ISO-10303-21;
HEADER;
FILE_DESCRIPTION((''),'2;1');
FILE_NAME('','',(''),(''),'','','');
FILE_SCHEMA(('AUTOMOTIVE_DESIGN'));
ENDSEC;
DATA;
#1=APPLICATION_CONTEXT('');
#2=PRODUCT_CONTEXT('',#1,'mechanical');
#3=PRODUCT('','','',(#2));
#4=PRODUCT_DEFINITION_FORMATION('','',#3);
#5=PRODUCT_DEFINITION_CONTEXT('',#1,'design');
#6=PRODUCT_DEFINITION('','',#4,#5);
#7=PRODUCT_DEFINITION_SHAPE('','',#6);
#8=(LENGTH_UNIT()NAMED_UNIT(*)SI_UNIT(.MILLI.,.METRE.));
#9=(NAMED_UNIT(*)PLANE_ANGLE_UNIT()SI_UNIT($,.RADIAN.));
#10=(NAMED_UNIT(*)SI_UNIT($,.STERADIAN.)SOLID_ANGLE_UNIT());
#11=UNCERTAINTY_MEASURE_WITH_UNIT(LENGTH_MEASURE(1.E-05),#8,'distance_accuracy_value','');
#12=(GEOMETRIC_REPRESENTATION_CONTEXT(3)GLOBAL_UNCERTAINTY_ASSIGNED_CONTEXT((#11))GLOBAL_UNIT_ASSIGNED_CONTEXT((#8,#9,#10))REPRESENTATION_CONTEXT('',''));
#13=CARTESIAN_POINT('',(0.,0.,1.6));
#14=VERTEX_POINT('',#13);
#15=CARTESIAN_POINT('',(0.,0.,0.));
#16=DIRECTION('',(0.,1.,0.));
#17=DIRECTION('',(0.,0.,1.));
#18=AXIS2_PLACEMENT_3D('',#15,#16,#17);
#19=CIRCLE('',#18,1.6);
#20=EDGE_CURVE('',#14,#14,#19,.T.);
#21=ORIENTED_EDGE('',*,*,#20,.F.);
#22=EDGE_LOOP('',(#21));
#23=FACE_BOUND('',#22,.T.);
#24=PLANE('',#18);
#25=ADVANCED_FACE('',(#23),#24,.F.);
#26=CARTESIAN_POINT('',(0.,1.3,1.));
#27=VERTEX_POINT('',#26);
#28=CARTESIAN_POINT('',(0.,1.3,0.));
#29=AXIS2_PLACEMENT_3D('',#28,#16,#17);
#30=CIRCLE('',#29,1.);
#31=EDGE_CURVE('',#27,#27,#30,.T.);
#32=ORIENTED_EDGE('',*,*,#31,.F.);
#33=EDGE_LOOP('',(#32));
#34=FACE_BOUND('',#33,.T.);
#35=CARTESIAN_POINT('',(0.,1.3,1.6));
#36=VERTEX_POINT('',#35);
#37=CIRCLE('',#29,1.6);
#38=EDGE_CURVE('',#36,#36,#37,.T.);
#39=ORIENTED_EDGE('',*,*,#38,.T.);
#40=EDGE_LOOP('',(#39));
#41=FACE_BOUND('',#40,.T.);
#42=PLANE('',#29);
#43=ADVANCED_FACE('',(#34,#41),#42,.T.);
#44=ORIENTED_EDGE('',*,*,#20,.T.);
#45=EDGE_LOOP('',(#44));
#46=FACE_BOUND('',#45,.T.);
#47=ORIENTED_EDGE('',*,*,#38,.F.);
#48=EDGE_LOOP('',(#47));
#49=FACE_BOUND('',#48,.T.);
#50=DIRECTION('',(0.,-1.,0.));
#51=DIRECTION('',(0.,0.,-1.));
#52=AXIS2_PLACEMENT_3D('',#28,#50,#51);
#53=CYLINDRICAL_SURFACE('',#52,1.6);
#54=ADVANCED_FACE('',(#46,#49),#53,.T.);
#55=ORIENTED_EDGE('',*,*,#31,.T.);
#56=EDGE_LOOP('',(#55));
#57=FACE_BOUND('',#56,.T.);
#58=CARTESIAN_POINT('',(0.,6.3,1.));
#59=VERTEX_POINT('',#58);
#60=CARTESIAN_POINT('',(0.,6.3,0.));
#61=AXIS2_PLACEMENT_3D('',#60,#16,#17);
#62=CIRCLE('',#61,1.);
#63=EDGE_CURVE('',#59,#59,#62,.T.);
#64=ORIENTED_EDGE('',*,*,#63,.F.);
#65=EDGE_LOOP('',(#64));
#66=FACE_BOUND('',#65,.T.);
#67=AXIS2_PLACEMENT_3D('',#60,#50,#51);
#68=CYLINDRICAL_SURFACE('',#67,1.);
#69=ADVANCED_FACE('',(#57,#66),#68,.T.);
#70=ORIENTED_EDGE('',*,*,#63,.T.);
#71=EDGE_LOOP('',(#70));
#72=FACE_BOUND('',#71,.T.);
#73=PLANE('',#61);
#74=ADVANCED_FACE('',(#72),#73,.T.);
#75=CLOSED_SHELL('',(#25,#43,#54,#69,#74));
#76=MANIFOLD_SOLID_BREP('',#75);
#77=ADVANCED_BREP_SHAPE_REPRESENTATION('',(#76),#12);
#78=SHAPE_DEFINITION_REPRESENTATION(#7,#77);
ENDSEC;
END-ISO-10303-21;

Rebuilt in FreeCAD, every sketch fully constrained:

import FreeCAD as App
import Part
import Sketcher
from FreeCAD import Vector

doc = App.newDocument("Part")
body = doc.addObject("PartDesign::Body", "Body")

sketch1 = body.newObject("Sketcher::SketchObject", "Sketch")
sketch1.AttachmentSupport = (doc.getObject("XZ_Plane"), [""])
sketch1.MapMode = "FlatFace"
sketch1.addGeometry(Part.Circle(Vector(0, 0, 0), Vector(0, 0, 1), 1.6), False)
sketch1.addConstraint(Sketcher.Constraint("Coincident", 0, 3, -1, 1))
sketch1.addConstraint(Sketcher.Constraint("Diameter", 0, 3.2))
pad1 = body.newObject("PartDesign::Pad", "Pad")
pad1.Profile = sketch1
pad1.Length = 1.3
pad1.Reversed = True

sketch2 = body.newObject("Sketcher::SketchObject", "Sketch001")
sketch2.AttachmentSupport = (doc.getObject("XZ_Plane"), [""])
sketch2.MapMode = "FlatFace"
sketch2.AttachmentOffset = App.Placement(Vector(0, 0, -1.3), App.Rotation())
sketch2.addGeometry(Part.Circle(Vector(0, 0, 0), Vector(0, 0, 1), 1), False)
sketch2.addConstraint(Sketcher.Constraint("Coincident", 0, 3, -1, 1))
sketch2.addConstraint(Sketcher.Constraint("Diameter", 0, 2.0))
pad2 = body.newObject("PartDesign::Pad", "Pad001")
pad2.Profile = sketch2
pad2.Length = 5
pad2.Reversed = True

doc.recompute()
